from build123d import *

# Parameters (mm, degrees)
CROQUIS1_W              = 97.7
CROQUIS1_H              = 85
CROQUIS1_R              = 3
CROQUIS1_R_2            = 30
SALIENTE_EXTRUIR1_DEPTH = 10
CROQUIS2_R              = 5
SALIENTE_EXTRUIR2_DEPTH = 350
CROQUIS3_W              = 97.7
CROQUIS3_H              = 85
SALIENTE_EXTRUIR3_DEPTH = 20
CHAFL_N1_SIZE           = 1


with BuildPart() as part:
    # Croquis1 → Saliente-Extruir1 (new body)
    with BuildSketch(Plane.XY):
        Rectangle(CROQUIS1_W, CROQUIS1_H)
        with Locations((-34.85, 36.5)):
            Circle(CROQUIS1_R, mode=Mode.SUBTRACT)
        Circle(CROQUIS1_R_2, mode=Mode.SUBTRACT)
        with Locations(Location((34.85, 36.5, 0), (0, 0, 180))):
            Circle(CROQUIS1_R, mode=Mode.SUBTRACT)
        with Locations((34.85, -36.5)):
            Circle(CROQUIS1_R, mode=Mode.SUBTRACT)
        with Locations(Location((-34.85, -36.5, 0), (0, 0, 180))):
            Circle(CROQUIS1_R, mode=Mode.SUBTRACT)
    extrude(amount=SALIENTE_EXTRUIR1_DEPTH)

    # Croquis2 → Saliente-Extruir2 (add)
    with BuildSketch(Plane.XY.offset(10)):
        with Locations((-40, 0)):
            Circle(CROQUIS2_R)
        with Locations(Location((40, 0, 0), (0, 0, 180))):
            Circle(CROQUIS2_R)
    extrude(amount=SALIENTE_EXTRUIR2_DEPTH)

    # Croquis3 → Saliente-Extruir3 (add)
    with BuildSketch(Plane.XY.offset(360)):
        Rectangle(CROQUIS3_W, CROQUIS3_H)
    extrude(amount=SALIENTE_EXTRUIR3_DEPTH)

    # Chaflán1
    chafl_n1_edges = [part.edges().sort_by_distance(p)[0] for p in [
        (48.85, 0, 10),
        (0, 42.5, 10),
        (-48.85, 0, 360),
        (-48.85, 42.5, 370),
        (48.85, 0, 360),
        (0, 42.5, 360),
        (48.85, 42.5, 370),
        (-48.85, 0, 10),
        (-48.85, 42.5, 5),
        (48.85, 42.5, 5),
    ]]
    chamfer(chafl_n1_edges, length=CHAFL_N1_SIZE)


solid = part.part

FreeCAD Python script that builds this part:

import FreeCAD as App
import Part
import Sketcher


def edges_at(feature, points):
    """Names of the edges that pass closest to the given points."""
    edges = feature.Shape.Edges
    near = lambda p: min(range(len(edges)), key=lambda i: edges[i].distToShape(Part.Vertex(*p))[0])
    return sorted({f"Edge{near(p) + 1}" for p in points})


def add_polygon(sketch, points):
    """Adds a closed chain of lines whose ends are joined by coincident constraints."""
    first, n = sketch.GeometryCount, len(points)
    for a, b in zip(points, points[1:] + points[:1]):
        sketch.addGeometry(Part.LineSegment(App.Vector(*a, 0), App.Vector(*b, 0)), False)
    for i in range(n):
        sketch.addConstraint(Sketcher.Constraint("Coincident", first + i, 2, first + (i + 1) % n, 1))

doc = App.newDocument("Part")
body = doc.addObject("PartDesign::Body", "Body")

sketch1 = body.newObject("Sketcher::SketchObject", "Sketch")
sketch1.AttachmentSupport = (doc.getObject("XY_Plane"), [""])
sketch1.MapMode = "FlatFace"
add_polygon(sketch1, [(-48.9, 42.5), (-48.9, -42.5), (48.9, -42.5), (48.9, 42.5)])
sketch1.addGeometry(Part.Circle(App.Vector(-34.9, -36.5, 0), App.Vector(0, 0, 1), 3), False)
sketch1.addGeometry(Part.Circle(App.Vector(34.9, -36.5, 0), App.Vector(0, 0, 1), 3), False)
sketch1.addGeometry(Part.Circle(App.Vector(-34.9, 36.5, 0), App.Vector(0, 0, 1), 3), False)
sketch1.addGeometry(Part.Circle(App.Vector(0, 0, 0), App.Vector(0, 0, 1), 30), False)
sketch1.addGeometry(Part.Circle(App.Vector(34.9, 36.5, 0), App.Vector(0, 0, 1), 3), False)
sketch1.addConstraint([
    Sketcher.Constraint("Vertical", 0),
    Sketcher.Constraint("Horizontal", 1),
    Sketcher.Constraint("Vertical", 2),
    Sketcher.Constraint("Horizontal", 3),
    Sketcher.Constraint("Coincident", 7, 3, -1, 1),
    Sketcher.Constraint("Equal", 4, 5),
    Sketcher.Constraint("Equal", 5, 6),
    Sketcher.Constraint("Equal", 6, 8),
    Sketcher.Constraint("Symmetric", 5, 3, 6, 3, -1, 1),
    Sketcher.Constraint("Symmetric", 4, 3, 8, 3, -1, 1),
    Sketcher.Constraint("Symmetric", 0, 2, 2, 2, -1, 1),
    Sketcher.Constraint("Symmetric", 4, 3, 5, 3, -2),
    Sketcher.Constraint("Diameter", 4, 6.0),
    Sketcher.Constraint("Diameter", 7, 60.0),
    Sketcher.Constraint("DistanceY", 0, 2, 0, 1, 85.0),
    Sketcher.Constraint("DistanceX", 1, 1, 1, 2, 97.7),
    Sketcher.Constraint("DistanceY", 4, 3, 6, 3, 73.0),
    Sketcher.Constraint("DistanceX", 0, 2, 4, 3, 14.0),
])
pad1 = body.newObject("PartDesign::Pad", "Pad")
pad1.Profile = sketch1
pad1.Length = 10

sketch2 = body.newObject("Sketcher::SketchObject", "Sketch001")
sketch2.AttachmentSupport = (doc.getObject("XY_Plane"), [""])
sketch2.MapMode = "FlatFace"
sketch2.AttachmentOffset = App.Placement(App.Vector(0, 0, 10), App.Rotation())
sketch2.addGeometry([
    Part.Circle(App.Vector(-40, 0, 0), App.Vector(0, 0, 1), 5),
    Part.Circle(App.Vector(40, 0, 0), App.Vector(0, 0, 1), 5),
], False)
sketch2.addConstraint([
    Sketcher.Constraint("Equal", 0, 1),
    Sketcher.Constraint("Symmetric", 0, 3, 1, 3, -1, 1),
    Sketcher.Constraint("PointOnObject", 0, 3, -1),
    Sketcher.Constraint("Diameter", 0, 10.0),
    Sketcher.Constraint("DistanceX", 0, 3, -1, 1, 40.0),
])
pad2 = body.newObject("PartDesign::Pad", "Pad001")
pad2.Profile = sketch2
pad2.Length = 350

sketch3 = body.newObject("Sketcher::SketchObject", "Sketch002")
sketch3.AttachmentSupport = (doc.getObject("XY_Plane"), [""])
sketch3.MapMode = "FlatFace"
sketch3.AttachmentOffset = App.Placement(App.Vector(0, 0, 360), App.Rotation())
add_polygon(sketch3, [(-49, 42), (-49, -42), (49, -42), (49, 42)])
sketch3.addConstraint([
    Sketcher.Constraint("Vertical", 0),
    Sketcher.Constraint("Horizontal", 1),
    Sketcher.Constraint("Vertical", 2),
    Sketcher.Constraint("Horizontal", 3),
    Sketcher.Constraint("Symmetric", 0, 2, 2, 2, -1, 1),
    Sketcher.Constraint("DistanceY", 0, 2, 0, 1, 85.0),
    Sketcher.Constraint("DistanceX", 1, 1, 1, 2, 97.7),
])
pad3 = body.newObject("PartDesign::Pad", "Pad002")
pad3.Profile = sketch3
pad3.Length = 20
doc.recompute()

chamfer = body.newObject("PartDesign::Chamfer", "Chamfer")
chamfer.Base = (pad3, edges_at(pad3, [
    (48.85, 0, 10),
    (0, 42.5, 10),
    (-48.85, 0, 360),
    (-48.85, 42.5, 370),
    (48.85, 0, 360),
    (0, 42.5, 360),
    (48.85, 42.5, 370),
    (-48.85, 0, 10),
    (-48.85, 42.5, 5),
    (48.85, 42.5, 5),
]))
chamfer.Size = 1

doc.recompute()
